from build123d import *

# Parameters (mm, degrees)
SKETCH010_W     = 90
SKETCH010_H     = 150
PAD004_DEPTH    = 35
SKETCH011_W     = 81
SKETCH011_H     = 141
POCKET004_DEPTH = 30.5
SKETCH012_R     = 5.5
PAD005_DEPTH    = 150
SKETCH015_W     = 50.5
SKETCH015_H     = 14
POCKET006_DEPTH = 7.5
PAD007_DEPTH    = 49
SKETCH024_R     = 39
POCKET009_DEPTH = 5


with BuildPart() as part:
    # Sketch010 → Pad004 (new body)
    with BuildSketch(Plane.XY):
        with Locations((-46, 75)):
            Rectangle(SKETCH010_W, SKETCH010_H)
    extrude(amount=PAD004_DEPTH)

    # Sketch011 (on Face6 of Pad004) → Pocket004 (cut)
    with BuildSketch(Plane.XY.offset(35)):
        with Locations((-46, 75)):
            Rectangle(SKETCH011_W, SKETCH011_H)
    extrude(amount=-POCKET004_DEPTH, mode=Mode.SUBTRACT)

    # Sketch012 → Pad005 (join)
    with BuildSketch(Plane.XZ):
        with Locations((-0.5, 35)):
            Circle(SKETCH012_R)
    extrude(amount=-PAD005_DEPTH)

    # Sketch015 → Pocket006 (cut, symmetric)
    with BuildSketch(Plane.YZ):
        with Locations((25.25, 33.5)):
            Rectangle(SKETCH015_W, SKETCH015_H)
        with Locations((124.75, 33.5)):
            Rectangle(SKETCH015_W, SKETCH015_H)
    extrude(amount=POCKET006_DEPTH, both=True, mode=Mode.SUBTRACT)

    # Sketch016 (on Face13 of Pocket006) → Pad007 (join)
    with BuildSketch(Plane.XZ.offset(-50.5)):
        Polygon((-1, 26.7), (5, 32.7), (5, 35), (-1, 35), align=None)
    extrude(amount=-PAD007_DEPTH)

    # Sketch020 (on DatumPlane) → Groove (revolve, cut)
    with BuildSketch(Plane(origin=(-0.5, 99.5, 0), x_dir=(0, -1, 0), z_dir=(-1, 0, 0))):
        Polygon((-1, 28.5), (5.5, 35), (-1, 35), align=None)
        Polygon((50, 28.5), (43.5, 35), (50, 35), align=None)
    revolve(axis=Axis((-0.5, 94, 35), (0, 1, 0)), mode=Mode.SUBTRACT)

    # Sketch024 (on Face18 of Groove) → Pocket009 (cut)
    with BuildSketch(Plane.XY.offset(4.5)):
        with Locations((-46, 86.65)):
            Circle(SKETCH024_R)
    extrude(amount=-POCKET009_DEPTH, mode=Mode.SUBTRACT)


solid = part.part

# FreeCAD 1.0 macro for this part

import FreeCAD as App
import Part
import Sketcher

V = App.Vector
Q = App.Units.Quantity

doc = App.newDocument("Part")
body = doc.addObject("PartDesign::Body", "Body")

# Sketch on XY plane
sketch1 = doc.addObject("Sketcher::SketchObject", "Sketch")
body.addObject(sketch1)
sketch1.AttachmentSupport = (doc.XY_Plane, [""])
sketch1.MapMode = "FlatFace"
sketch1.addGeometry(Part.LineSegment(V(-91, 150, 0), V(-91, 0, 0)), False)
sketch1.addGeometry(Part.LineSegment(V(-91, 0, 0), V(-1, 0, 0)), False)
sketch1.addGeometry(Part.LineSegment(V(-1, 0, 0), V(-1, 150, 0)), False)
sketch1.addGeometry(Part.LineSegment(V(-1, 150, 0), V(-91, 150, 0)), False)
sketch1.addConstraint(Sketcher.Constraint("Coincident", 0, 2, 1, 1))
sketch1.addConstraint(Sketcher.Constraint("Coincident", 1, 2, 2, 1))
sketch1.addConstraint(Sketcher.Constraint("Coincident", 2, 2, 3, 1))
sketch1.addConstraint(Sketcher.Constraint("Coincident", 3, 2, 0, 1))
sketch1.addConstraint(Sketcher.Constraint("Vertical", 0))
sketch1.addConstraint(Sketcher.Constraint("Horizontal", 1))
sketch1.addConstraint(Sketcher.Constraint("Vertical", 2))
sketch1.addConstraint(Sketcher.Constraint("Horizontal", 3))
sketch1.addConstraint(Sketcher.Constraint("PointOnObject", 0, 2, -1))
sketch1.addConstraint(Sketcher.Constraint("DistanceX", 1, 1, 1, 2, Q("90 mm")))
sketch1.addConstraint(Sketcher.Constraint("DistanceY", 0, 2, 0, 1, Q("150 mm")))
sketch1.addConstraint(Sketcher.Constraint("DistanceX", 0, 2, -1, 1, Q("91 mm")))
pad1 = doc.addObject("PartDesign::Pad", "Pad")
body.addObject(pad1)
pad1.Profile = sketch1
pad1.Length = 35

# Sketch on XY plane
sketch2 = doc.addObject("Sketcher::SketchObject", "Sketch001")
body.addObject(sketch2)
sketch2.AttachmentSupport = (doc.XY_Plane, [""])
sketch2.MapMode = "FlatFace"
sketch2.AttachmentOffset = App.Placement(V(0, 0, 35), App.Rotation())
sketch2.addGeometry(Part.LineSegment(V(-86, 146, 0), V(-86, 4, 0)), False)
sketch2.addGeometry(Part.LineSegment(V(-86, 4, 0), V(-6, 4, 0)), False)
sketch2.addGeometry(Part.LineSegment(V(-6, 4, 0), V(-6, 146, 0)), False)
sketch2.addGeometry(Part.LineSegment(V(-6, 146, 0), V(-86, 146, 0)), False)
sketch2.addConstraint(Sketcher.Constraint("Coincident", 0, 2, 1, 1))
sketch2.addConstraint(Sketcher.Constraint("Coincident", 1, 2, 2, 1))
sketch2.addConstraint(Sketcher.Constraint("Coincident", 2, 2, 3, 1))
sketch2.addConstraint(Sketcher.Constraint("Coincident", 3, 2, 0, 1))
sketch2.addConstraint(Sketcher.Constraint("Vertical", 0))
sketch2.addConstraint(Sketcher.Constraint("Horizontal", 1))
sketch2.addConstraint(Sketcher.Constraint("Vertical", 2))
sketch2.addConstraint(Sketcher.Constraint("Horizontal", 3))
sketch2.addConstraint(Sketcher.Constraint("DistanceX", 1, 1, 1, 2, Q("81 mm")))
sketch2.addConstraint(Sketcher.Constraint("DistanceY", 0, 2, 0, 1, Q("141 mm")))
sketch2.addConstraint(Sketcher.Constraint("DistanceX", 0, 2, -1, 1, Q("86.5 mm")))
sketch2.addConstraint(Sketcher.Constraint("DistanceY", -1, 1, 0, 2, Q("4.5 mm")))
pocket1 = doc.addObject("PartDesign::Pocket", "Pocket")
body.addObject(pocket1)
pocket1.Profile = sketch2
pocket1.Length = 30.5

# Sketch on XZ plane
sketch3 = doc.addObject("Sketcher::SketchObject", "Sketch002")
body.addObject(sketch3)
sketch3.AttachmentSupport = (doc.XZ_Plane, [""])
sketch3.MapMode = "FlatFace"
sketch3.addGeometry(Part.Circle(V(0, 35, 0), V(0, 0, 1), 6), False)
sketch3.addConstraint(Sketcher.Constraint("Diameter", 0, Q("11 mm")))
sketch3.addConstraint(Sketcher.Constraint("DistanceY", -1, 1, 0, 3, Q("35 mm")))
sketch3.addConstraint(Sketcher.Constraint("DistanceX", 0, 3, -1, 1, Q("0.5 mm")))
pad2 = doc.addObject("PartDesign::Pad", "Pad001")
body.addObject(pad2)
pad2.Profile = sketch3
pad2.Length = 150
pad2.Reversed = True

# Sketch on YZ plane
sketch4 = doc.addObject("Sketcher::SketchObject", "Sketch003")
body.addObject(sketch4)
sketch4.AttachmentSupport = (doc.YZ_Plane, [""])
sketch4.MapMode = "FlatFace"
sketch4.addGeometry(Part.LineSegment(V(0, 40, 0), V(0, 26, 0)), False)
sketch4.addGeometry(Part.LineSegment(V(0, 26, 0), V(50, 26, 0)), False)
sketch4.addGeometry(Part.LineSegment(V(50, 26, 0), V(50, 40, 0)), False)
sketch4.addGeometry(Part.LineSegment(V(50, 40, 0), V(0, 40, 0)), False)
sketch4.addGeometry(Part.LineSegment(V(100, 40, 0), V(100, 26, 0)), False)
sketch4.addGeometry(Part.LineSegment(V(100, 26, 0), V(150, 26, 0)), False)
sketch4.addGeometry(Part.LineSegment(V(150, 26, 0), V(150, 40, 0)), False)
sketch4.addGeometry(Part.LineSegment(V(150, 40, 0), V(100, 40, 0)), False)
sketch4.addConstraint(Sketcher.Constraint("Coincident", 0, 2, 1, 1))
sketch4.addConstraint(Sketcher.Constraint("Coincident", 1, 2, 2, 1))
sketch4.addConstraint(Sketcher.Constraint("Coincident", 2, 2, 3, 1))
sketch4.addConstraint(Sketcher.Constraint("Coincident", 3, 2, 0, 1))
sketch4.addConstraint(Sketcher.Constraint("Coincident", 4, 2, 5, 1))
sketch4.addConstraint(Sketcher.Constraint("Coincident", 5, 2, 6, 1))
sketch4.addConstraint(Sketcher.Constraint("Coincident", 6, 2, 7, 1))
sketch4.addConstraint(Sketcher.Constraint("Coincident", 7, 2, 4, 1))
sketch4.addConstraint(Sketcher.Constraint("Vertical", 0))
sketch4.addConstraint(Sketcher.Constraint("Horizontal", 1))
sketch4.addConstraint(Sketcher.Constraint("Vertical", 2))
sketch4.addConstraint(Sketcher.Constraint("Horizontal", 3))
sketch4.addConstraint(Sketcher.Constraint("Vertical", 4))
sketch4.addConstraint(Sketcher.Constraint("Horizontal", 5))
sketch4.addConstraint(Sketcher.Constraint("Vertical", 6))
sketch4.addConstraint(Sketcher.Constraint("Horizontal", 7))
sketch4.addConstraint(Sketcher.Constraint("PointOnObject", 0, 2, -2))
sketch4.addConstraint(Sketcher.Constraint("Horizontal", 1, 2, 4, 2))
sketch4.addConstraint(Sketcher.Constraint("Horizontal", 3, 2, 6, 2))
sketch4.addConstraint(Sketcher.Constraint("Equal", 3, 5))
sketch4.addConstraint(Sketcher.Constraint("DistanceY", 0, 2, 0, 1, Q("14 mm")))
sketch4.addConstraint(Sketcher.Constraint("DistanceX", 1, 1, 1, 2, Q("50.5 mm")))
sketch4.addConstraint(Sketcher.Constraint("DistanceX", -1, 1, 5, 2, Q("150 mm")))
sketch4.addConstraint(Sketcher.Constraint("DistanceY", -1, 1, 0, 2, Q("26.5 mm")))
pocket2 = doc.addObject("PartDesign::Pocket", "Pocket001")
body.addObject(pocket2)
pocket2.Profile = sketch4
pocket2.Length = 15
pocket2.Midplane = True

# Sketch on XZ plane
sketch5 = doc.addObject("Sketcher::SketchObject", "Sketch004")
body.addObject(sketch5)
sketch5.AttachmentSupport = (doc.XZ_Plane, [""])
sketch5.MapMode = "FlatFace"
sketch5.AttachmentOffset = App.Placement(V(0, 0, -50.5), App.Rotation())
sketch5.addGeometry(Part.LineSegment(V(-1, 26.7, 0), V(5, 32.7, 0)), False)
sketch5.addGeometry(Part.LineSegment(V(5, 32.7, 0), V(5, 35, 0)), False)
sketch5.addGeometry(Part.LineSegment(V(5, 35, 0), V(-1, 35, 0)), False)
sketch5.addGeometry(Part.LineSegment(V(-1, 35, 0), V(-1, 26.7, 0)), False)
sketch5.addConstraint(Sketcher.Constraint("Coincident", 0, 2, 1, 1))
sketch5.addConstraint(Sketcher.Constraint("Coincident", 1, 2, 2, 1))
sketch5.addConstraint(Sketcher.Constraint("Coincident", 2, 2, 3, 1))
sketch5.addConstraint(Sketcher.Constraint("Coincident", 3, 2, 0, 1))
sketch5.addConstraint(Sketcher.Constraint("Vertical", 1))
sketch5.addConstraint(Sketcher.Constraint("Horizontal", 2))
sketch5.addConstraint(Sketcher.Constraint("Vertical", 3))
sketch5.addConstraint(Sketcher.Constraint("DistanceX", 2, 2, 2, 1, Q("6 mm")))
sketch5.addConstraint(Sketcher.Constraint("Angle", 0, Q("45 deg")))
sketch5.addConstraint(Sketcher.Constraint("DistanceY", 1, 1, 1, 2, Q("2.3 mm")))
sketch5.addConstraint(Sketcher.Constraint("DistanceX", -1, 1, 0, 2, Q("5 mm")))
sketch5.addConstraint(Sketcher.Constraint("DistanceY", -1, 1, 1, 2, Q("35 mm")))
pad3 = doc.addObject("PartDesign::Pad", "Pad002")
body.addObject(pad3)
pad3.Profile = sketch5
pad3.Length = 49
pad3.Reversed = True

# Sketch on YZ plane
sketch6 = doc.addObject("Sketcher::SketchObject", "Sketch005")
body.addObject(sketch6)
sketch6.AttachmentSupport = (doc.YZ_Plane, [""])
sketch6.MapMode = "FlatFace"
sketch6.AttachmentOffset = App.Placement(V(0, 0, -0.5), App.Rotation())
sketch6.addGeometry(Part.LineSegment(V(100, 28, 0), V(94, 35, 0)), False)
sketch6.addGeometry(Part.LineSegment(V(94, 35, 0), V(100, 35, 0)), False)
sketch6.addGeometry(Part.LineSegment(V(100, 35, 0), V(100, 28, 0)), False)
sketch6.addGeometry(Part.LineSegment(V(56, 35, 0), V(50, 28, 0)), False)
sketch6.addGeometry(Part.LineSegment(V(50, 28, 0), V(50, 35, 0)), False)
sketch6.addGeometry(Part.LineSegment(V(50, 35, 0), V(56, 35, 0)), False)
sketch6.addGeometry(Part.LineSegment(V(50, 35, 0), V(100, 35, 0)), True)  # axis
sketch6.addConstraint(Sketcher.Constraint("Coincident", 0, 2, 1, 1))
sketch6.addConstraint(Sketcher.Constraint("Coincident", 1, 2, 2, 1))
sketch6.addConstraint(Sketcher.Constraint("Coincident", 2, 2, 0, 1))
sketch6.addConstraint(Sketcher.Constraint("Coincident", 3, 2, 4, 1))
sketch6.addConstraint(Sketcher.Constraint("Coincident", 4, 2, 5, 1))
sketch6.addConstraint(Sketcher.Constraint("Coincident", 5, 2, 3, 1))
sketch6.addConstraint(Sketcher.Constraint("Horizontal", 1))
sketch6.addConstraint(Sketcher.Constraint("Vertical", 2))
sketch6.addConstraint(Sketcher.Constraint("Vertical", 4))
sketch6.addConstraint(Sketcher.Constraint("Horizontal", 5))
sketch6.addConstraint(Sketcher.Constraint("Horizontal", 6))
sketch6.addConstraint(Sketcher.Constraint("Coincident", 6, 1, 4, 2))
sketch6.addConstraint(Sketcher.Constraint("Coincident", 6, 2, 1, 2))
sketch6.addConstraint(Sketcher.Constraint("Perpendicular", 0, 3))
sketch6.addConstraint(Sketcher.Constraint("Horizontal", 2, 2, 3, 2))
sketch6.addConstraint(Sketcher.Constraint("Equal", 1, 5))
sketch6.addConstraint(Sketcher.Constraint("DistanceX", 6, 1, 6, 2, Q("51 mm")))
sketch6.addConstraint(Sketcher.Constraint("DistanceX", 1, 1, 1, 2, Q("6.5 mm")))
sketch6.addConstraint(Sketcher.Constraint("DistanceX", -1, 1, 0, 2, Q("94 mm")))
sketch6.addConstraint(Sketcher.Constraint("DistanceY", -1, 1, 0, 2, Q("35 mm")))
groove = doc.addObject("PartDesign::Groove", "Groove")
body.addObject(groove)
groove.Profile = sketch6
groove.ReferenceAxis = (sketch6, ["Axis0"])
groove.Angle = 360

# Sketch on XY plane
sketch7 = doc.addObject("Sketcher::SketchObject", "Sketch006")
body.addObject(sketch7)
sketch7.AttachmentSupport = (doc.XY_Plane, [""])
sketch7.MapMode = "FlatFace"
sketch7.AttachmentOffset = App.Placement(V(0, 0, 4.5), App.Rotation())
sketch7.addGeometry(Part.Circle(V(-46, 87, 0), V(0, 0, 1), 39), False)
sketch7.addConstraint(Sketcher.Constraint("Diameter", 0, Q("78 mm")))
sketch7.addConstraint(Sketcher.Constraint("DistanceX", 0, 3, -1, 1, Q("46 mm")))
sketch7.addConstraint(Sketcher.Constraint("DistanceY", -1, 1, 0, 3, Q("86.65 mm")))
pocket3 = doc.addObject("PartDesign::Pocket", "Pocket002")
body.addObject(pocket3)
pocket3.Profile = sketch7
pocket3.Length = 5

doc.recompute()
